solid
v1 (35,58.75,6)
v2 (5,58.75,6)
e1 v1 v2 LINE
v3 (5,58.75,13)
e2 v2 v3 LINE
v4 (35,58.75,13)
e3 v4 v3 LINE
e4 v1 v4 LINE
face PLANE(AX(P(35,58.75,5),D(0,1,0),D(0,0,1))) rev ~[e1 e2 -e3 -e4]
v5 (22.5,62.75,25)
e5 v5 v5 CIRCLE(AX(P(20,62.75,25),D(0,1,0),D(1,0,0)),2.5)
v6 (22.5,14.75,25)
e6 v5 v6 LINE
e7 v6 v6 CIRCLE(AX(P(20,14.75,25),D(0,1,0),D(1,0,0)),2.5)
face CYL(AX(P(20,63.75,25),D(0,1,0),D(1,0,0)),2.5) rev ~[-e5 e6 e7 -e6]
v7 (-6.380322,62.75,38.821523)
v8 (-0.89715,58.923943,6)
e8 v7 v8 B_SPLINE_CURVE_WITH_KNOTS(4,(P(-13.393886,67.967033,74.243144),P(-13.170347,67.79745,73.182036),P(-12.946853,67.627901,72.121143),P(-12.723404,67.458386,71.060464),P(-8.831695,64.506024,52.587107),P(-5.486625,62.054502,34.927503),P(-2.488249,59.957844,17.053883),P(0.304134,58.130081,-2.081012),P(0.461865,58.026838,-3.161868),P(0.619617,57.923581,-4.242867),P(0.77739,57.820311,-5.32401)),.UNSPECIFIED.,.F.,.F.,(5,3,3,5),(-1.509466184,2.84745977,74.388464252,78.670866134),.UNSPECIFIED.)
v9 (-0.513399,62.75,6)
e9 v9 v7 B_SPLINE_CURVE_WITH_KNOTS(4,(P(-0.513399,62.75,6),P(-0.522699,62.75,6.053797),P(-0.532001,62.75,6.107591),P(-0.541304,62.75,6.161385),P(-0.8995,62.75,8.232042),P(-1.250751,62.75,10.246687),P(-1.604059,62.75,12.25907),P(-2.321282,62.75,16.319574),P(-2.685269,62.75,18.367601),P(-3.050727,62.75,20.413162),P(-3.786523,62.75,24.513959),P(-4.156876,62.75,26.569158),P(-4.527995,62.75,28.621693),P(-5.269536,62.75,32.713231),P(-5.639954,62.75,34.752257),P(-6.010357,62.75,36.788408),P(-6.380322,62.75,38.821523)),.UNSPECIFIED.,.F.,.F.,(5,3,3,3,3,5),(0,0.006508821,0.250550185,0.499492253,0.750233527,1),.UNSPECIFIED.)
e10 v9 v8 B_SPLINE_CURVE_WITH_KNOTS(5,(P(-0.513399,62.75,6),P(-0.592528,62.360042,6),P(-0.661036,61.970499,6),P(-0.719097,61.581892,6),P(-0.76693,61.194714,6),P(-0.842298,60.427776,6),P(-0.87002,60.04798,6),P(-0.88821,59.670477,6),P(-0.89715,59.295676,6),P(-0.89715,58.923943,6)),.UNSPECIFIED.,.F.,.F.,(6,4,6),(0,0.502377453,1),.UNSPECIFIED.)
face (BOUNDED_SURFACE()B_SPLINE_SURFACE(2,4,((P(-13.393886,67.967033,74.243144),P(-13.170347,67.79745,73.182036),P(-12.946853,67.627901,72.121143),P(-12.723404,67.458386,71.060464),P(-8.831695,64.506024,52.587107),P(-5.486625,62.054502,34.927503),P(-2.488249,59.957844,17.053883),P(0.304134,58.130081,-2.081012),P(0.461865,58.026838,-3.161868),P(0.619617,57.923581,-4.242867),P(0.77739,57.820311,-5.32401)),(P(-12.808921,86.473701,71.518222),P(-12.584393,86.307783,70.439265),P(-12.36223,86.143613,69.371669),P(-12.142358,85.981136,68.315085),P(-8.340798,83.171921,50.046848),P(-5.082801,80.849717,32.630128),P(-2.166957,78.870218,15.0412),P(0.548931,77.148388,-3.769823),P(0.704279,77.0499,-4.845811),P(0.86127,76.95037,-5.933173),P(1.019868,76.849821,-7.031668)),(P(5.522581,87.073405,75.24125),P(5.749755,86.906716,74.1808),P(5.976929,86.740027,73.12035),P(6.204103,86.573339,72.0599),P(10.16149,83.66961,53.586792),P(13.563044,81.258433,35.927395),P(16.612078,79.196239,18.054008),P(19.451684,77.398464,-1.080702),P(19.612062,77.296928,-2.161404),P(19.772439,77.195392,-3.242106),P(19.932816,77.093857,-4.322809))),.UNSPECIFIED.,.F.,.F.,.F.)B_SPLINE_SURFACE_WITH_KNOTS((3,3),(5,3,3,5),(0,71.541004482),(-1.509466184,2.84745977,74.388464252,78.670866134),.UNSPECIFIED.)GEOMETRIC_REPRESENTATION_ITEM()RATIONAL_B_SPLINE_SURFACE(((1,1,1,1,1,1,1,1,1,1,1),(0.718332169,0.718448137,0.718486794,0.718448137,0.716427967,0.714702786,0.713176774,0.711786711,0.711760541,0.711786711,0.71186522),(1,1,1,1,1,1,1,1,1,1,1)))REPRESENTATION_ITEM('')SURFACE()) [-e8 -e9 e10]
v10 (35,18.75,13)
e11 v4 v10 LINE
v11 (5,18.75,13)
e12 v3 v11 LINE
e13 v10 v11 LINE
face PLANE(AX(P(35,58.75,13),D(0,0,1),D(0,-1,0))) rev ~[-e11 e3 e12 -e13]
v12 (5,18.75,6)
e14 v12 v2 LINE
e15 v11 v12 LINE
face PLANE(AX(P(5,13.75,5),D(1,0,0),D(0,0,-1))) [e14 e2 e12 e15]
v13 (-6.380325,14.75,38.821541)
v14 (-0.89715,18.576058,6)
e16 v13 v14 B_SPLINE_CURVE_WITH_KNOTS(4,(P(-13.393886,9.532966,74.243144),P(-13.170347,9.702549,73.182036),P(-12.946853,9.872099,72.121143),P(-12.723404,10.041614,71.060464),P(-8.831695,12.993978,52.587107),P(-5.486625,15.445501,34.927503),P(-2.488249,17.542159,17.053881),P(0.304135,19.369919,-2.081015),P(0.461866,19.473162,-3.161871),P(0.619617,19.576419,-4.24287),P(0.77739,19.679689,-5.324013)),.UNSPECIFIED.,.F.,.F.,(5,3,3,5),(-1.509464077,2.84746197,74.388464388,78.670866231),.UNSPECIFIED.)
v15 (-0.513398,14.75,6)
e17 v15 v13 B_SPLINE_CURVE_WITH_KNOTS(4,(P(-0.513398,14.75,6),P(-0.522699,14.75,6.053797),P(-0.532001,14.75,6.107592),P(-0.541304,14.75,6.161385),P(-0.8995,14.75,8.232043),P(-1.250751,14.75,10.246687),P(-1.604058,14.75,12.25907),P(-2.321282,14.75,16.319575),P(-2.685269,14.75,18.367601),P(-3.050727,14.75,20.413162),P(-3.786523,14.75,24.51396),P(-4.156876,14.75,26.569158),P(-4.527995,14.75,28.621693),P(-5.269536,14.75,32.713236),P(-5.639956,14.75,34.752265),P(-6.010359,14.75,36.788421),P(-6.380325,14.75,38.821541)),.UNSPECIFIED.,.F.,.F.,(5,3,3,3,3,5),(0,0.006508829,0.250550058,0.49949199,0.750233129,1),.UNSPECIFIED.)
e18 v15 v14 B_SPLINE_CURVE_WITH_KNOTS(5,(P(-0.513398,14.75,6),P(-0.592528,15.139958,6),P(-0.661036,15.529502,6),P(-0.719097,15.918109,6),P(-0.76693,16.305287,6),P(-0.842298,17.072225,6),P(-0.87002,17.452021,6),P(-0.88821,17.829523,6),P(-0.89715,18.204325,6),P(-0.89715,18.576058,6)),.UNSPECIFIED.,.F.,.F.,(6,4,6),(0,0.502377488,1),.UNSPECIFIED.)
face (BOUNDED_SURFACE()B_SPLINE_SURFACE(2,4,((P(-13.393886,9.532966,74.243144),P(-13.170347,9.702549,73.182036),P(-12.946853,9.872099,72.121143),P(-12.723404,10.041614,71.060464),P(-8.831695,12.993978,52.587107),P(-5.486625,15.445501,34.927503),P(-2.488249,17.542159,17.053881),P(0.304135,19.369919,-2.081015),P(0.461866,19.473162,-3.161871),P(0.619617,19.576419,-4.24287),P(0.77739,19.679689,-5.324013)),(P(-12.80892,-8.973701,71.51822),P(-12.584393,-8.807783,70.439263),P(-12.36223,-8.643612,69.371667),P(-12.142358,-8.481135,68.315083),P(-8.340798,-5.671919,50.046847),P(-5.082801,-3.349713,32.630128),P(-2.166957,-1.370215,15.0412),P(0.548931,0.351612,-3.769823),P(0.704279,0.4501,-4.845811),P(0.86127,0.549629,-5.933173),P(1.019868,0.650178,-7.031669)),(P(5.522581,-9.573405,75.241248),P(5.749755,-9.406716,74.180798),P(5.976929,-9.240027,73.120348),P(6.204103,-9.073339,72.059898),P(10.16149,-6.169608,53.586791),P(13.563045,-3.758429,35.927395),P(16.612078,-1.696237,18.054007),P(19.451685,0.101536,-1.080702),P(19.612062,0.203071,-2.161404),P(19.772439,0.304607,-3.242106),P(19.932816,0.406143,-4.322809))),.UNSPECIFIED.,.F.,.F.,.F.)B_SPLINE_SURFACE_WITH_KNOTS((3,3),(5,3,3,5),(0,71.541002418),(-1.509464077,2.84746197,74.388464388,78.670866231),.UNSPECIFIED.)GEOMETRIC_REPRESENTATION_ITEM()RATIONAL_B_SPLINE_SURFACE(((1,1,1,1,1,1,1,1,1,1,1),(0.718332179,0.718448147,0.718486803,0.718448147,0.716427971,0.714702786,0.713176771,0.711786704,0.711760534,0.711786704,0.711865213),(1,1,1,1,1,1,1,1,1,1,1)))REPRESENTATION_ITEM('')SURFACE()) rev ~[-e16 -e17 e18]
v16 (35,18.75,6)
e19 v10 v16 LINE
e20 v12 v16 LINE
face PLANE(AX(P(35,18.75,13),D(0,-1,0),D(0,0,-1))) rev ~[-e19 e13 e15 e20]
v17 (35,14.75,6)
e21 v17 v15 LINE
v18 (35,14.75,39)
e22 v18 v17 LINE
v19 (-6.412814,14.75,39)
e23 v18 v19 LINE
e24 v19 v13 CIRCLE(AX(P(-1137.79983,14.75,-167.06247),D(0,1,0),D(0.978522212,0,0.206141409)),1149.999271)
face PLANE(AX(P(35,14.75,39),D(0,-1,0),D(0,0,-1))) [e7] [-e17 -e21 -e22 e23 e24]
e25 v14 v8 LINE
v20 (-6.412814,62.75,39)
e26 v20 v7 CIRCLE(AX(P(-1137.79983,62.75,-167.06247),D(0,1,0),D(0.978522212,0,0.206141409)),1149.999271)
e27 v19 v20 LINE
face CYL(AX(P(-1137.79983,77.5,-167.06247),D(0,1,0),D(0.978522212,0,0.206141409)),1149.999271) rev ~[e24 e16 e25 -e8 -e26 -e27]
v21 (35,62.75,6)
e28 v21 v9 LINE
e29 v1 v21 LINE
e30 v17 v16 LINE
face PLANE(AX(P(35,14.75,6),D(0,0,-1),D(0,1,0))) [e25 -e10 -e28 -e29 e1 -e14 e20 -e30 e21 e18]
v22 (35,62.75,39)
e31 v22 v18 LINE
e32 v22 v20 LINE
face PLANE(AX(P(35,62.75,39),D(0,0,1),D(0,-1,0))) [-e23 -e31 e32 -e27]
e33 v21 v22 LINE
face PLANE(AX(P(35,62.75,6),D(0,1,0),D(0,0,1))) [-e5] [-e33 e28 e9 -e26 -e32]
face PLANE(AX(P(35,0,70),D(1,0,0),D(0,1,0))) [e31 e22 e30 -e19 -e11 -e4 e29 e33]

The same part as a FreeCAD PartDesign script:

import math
import FreeCAD as App
import Part
import Sketcher


def edges_at(feature, points):
    """Names of the edges that pass closest to the given points."""
    edges = feature.Shape.Edges
    near = lambda p: min(range(len(edges)), key=lambda i: edges[i].distToShape(Part.Vertex(*p))[0])
    return sorted({f"Edge{near(p) + 1}" for p in points})


def add_polygon(sketch, points):
    """Adds a closed chain of lines whose ends are joined by coincident constraints."""
    first, n = sketch.GeometryCount, len(points)
    for a, b in zip(points, points[1:] + points[:1]):
        sketch.addGeometry(Part.LineSegment(App.Vector(*a, 0), App.Vector(*b, 0)), False)
    for i in range(n):
        sketch.addConstraint(Sketcher.Constraint("Coincident", first + i, 2, first + (i + 1) % n, 1))

doc = App.newDocument("Part")
body = doc.addObject("PartDesign::Body", "Body")

# Sketch on XY plane
sketch1 = body.newObject("Sketcher::SketchObject", "Sketch")
sketch1.AttachmentSupport = (doc.getObject("XY_Plane"), [""])
sketch1.MapMode = "FlatFace"
add_polygon(sketch1, [(0, 77.5), (0, 0), (70, 0), (70, 77.5)])  # lines 0-3
sketch1.addConstraint(Sketcher.Constraint("Vertical", 0))
sketch1.addConstraint(Sketcher.Constraint("Horizontal", 1))
sketch1.addConstraint(Sketcher.Constraint("Vertical", 2))
sketch1.addConstraint(Sketcher.Constraint("Horizontal", 3))
sketch1.addConstraint(Sketcher.Constraint("Coincident", 0, 2, -1, 1))
sketch1.addConstraint(Sketcher.Constraint("DistanceX", 1, 1, 1, 2, 70.0))
sketch1.addConstraint(Sketcher.Constraint("DistanceY", 0, 2, 0, 1, 77.5))
pad1 = body.newObject("PartDesign::Pad", "Pad")
pad1.Profile = sketch1
pad1.Length = 70

# Sketch on XY plane
sketch2 = body.newObject("Sketcher::SketchObject", "Sketch001")
sketch2.AttachmentSupport = (doc.getObject("XY_Plane"), [""])
sketch2.MapMode = "FlatFace"
sketch2.AttachmentOffset = App.Placement(App.Vector(0, 0, 70), App.Rotation())
add_polygon(sketch2, [(35, 77.5), (35, 0), (70, 0), (70, 77.5)])  # lines 0-3
sketch2.addConstraint(Sketcher.Constraint("Vertical", 0))
sketch2.addConstraint(Sketcher.Constraint("Horizontal", 1))
sketch2.addConstraint(Sketcher.Constraint("Vertical", 2))
sketch2.addConstraint(Sketcher.Constraint("Horizontal", 3))
sketch2.addConstraint(Sketcher.Constraint("PointOnObject", 0, 2, -1))
sketch2.addConstraint(Sketcher.Constraint("DistanceX", 1, 1, 1, 2, 35.0))
sketch2.addConstraint(Sketcher.Constraint("DistanceY", 0, 2, 0, 1, 77.5))
sketch2.addConstraint(Sketcher.Constraint("DistanceX", -1, 1, 0, 2, 35.0))
pocket1 = body.newObject("PartDesign::Pocket", "Pocket")
pocket1.Profile = sketch2
pocket1.Type = "ThroughAll"

# Sketch on XZ plane
sketch3 = body.newObject("Sketcher::SketchObject", "Sketch002")
sketch3.AttachmentSupport = (doc.getObject("XZ_Plane"), [""])
sketch3.MapMode = "FlatFace"
sketch3.AttachmentOffset = App.Placement(App.Vector(0, 0, -77.5), App.Rotation())
sketch3.addGeometry(Part.LineSegment(App.Vector(0, 70, 0), App.Vector(0, 0, 0)), False)
sketch3.addGeometry(Part.ArcOfCircle(Part.Circle(App.Vector(-1137.8005, -167.0626, 0), App.Vector(0, 0, 1), 1149.999953), math.radians(8.353021), math.radians(11.896324)), False)
sketch3.addGeometry(Part.LineSegment(App.Vector(-12.5, 70, 0), App.Vector(0, 70, 0)), False)
sketch3.addConstraint(Sketcher.Constraint("Coincident", 0, 2, 1, 1))
sketch3.addConstraint(Sketcher.Constraint("Coincident", 1, 2, 2, 1))
sketch3.addConstraint(Sketcher.Constraint("Coincident", 2, 2, 0, 1))
sketch3.addConstraint(Sketcher.Constraint("Vertical", 0))
sketch3.addConstraint(Sketcher.Constraint("Horizontal", 2))
sketch3.addConstraint(Sketcher.Constraint("Coincident", 0, 2, -1, 1))
sketch3.addConstraint(Sketcher.Constraint("Radius", 1, 1150.0))
sketch3.addConstraint(Sketcher.Constraint("DistanceY", 0, 2, 0, 1, 70.0))
sketch3.addConstraint(Sketcher.Constraint("DistanceX", 2, 1, 2, 2, 12.5))
pad2 = body.newObject("PartDesign::Pad", "Pad001")
pad2.Profile = sketch3
pad2.Length = 77.5

# Sketch on YZ plane
sketch4 = body.newObject("Sketcher::SketchObject", "Sketch003")
sketch4.AttachmentSupport = (doc.getObject("YZ_Plane"), [""])
sketch4.MapMode = "FlatFace"
sketch4.AttachmentOffset = App.Placement(App.Vector(0, 0, 35), App.Rotation())
sketch4.addGeometry(Part.LineSegment(App.Vector(86.25, 70, 0), App.Vector(77.5, 70, 0)), False)
sketch4.addGeometry(Part.LineSegment(App.Vector(77.5, 70, 0), App.Vector(77.5, 0, 0)), False)
sketch4.addGeometry(Part.ArcOfCircle(Part.Circle(App.Vector(1222.460102, -107.573138, 0), App.Vector(0, 0, 1), 1150.002442), math.radians(171.117357), math.radians(174.632611)), False)
sketch4.addGeometry(Part.LineSegment(App.Vector(0, 0, 0), App.Vector(0, 70, 0)), False)
sketch4.addGeometry(Part.LineSegment(App.Vector(0, 70, 0), App.Vector(-8.75, 70, 0)), False)
sketch4.addGeometry(Part.ArcOfCircle(Part.Circle(App.Vector(-1144.955288, -107.572536, 0), App.Vector(0, 0, 1), 1149.997593), math.radians(5.367382), math.radians(8.882651)), False)
sketch4.addConstraint(Sketcher.Constraint("Coincident", 0, 2, 1, 1))
sketch4.addConstraint(Sketcher.Constraint("Coincident", 1, 2, 2, 2))
sketch4.addConstraint(Sketcher.Constraint("Coincident", 2, 1, 0, 1))
sketch4.addConstraint(Sketcher.Constraint("Coincident", 3, 2, 4, 1))
sketch4.addConstraint(Sketcher.Constraint("Coincident", 4, 2, 5, 2))
sketch4.addConstraint(Sketcher.Constraint("Coincident", 5, 1, 3, 1))
sketch4.addConstraint(Sketcher.Constraint("Horizontal", 0))
sketch4.addConstraint(Sketcher.Constraint("Vertical", 1))
sketch4.addConstraint(Sketcher.Constraint("Vertical", 3))
sketch4.addConstraint(Sketcher.Constraint("Horizontal", 4))
sketch4.addConstraint(Sketcher.Constraint("PointOnObject", 1, 2, -1))
sketch4.addConstraint(Sketcher.Constraint("PointOnObject", 3, 2, -2))
sketch4.addConstraint(Sketcher.Constraint("Equal", 0, 4))
sketch4.addConstraint(Sketcher.Constraint("Equal", 1, 3))
sketch4.addConstraint(Sketcher.Constraint("DistanceX", 4, 2, 2, 1, 95.0))
sketch4.addConstraint(Sketcher.Constraint("DistanceY", 1, 2, 1, 1, 70.0))
sketch4.addConstraint(Sketcher.Constraint("DistanceY", -1, 1, 3, 2, 70.0))
sketch4.addConstraint(Sketcher.Constraint("DistanceX", 0, 2, 0, 1, 8.75))
sketch4.addConstraint(Sketcher.Constraint("Radius", 2, 1150.0024))
sketch4.addConstraint(Sketcher.Constraint("Radius", 5, 1149.9976))
pad3 = body.newObject("PartDesign::Pad", "Pad002")
pad3.Profile = sketch4
pad3.Length = 55
pad3.Reversed = True

# Sketch on XZ plane
sketch5 = body.newObject("Sketcher::SketchObject", "Sketch004")
sketch5.AttachmentSupport = (doc.getObject("XZ_Plane"), [""])
sketch5.MapMode = "FlatFace"
sketch5.addGeometry(Part.ArcOfCircle(Part.Circle(App.Vector(-1137.8005, -167.0626, 0), App.Vector(0, 0, 1), 1149.999953), math.radians(8.353021), math.radians(11.896324)), False)
sketch5.addGeometry(Part.LineSegment(App.Vector(0, 0, 0), App.Vector(-20, 0, 0)), False)
sketch5.addGeometry(Part.LineSegment(App.Vector(-20, 0, 0), App.Vector(-20, 70, 0)), False)
sketch5.addGeometry(Part.LineSegment(App.Vector(-20, 70, 0), App.Vector(-12.5, 70, 0)), False)
sketch5.addConstraint(Sketcher.Constraint("Coincident", 0, 1, 1, 1))
sketch5.addConstraint(Sketcher.Constraint("Coincident", 1, 2, 2, 1))
sketch5.addConstraint(Sketcher.Constraint("Coincident", 2, 2, 3, 1))
sketch5.addConstraint(Sketcher.Constraint("Coincident", 3, 2, 0, 2))
sketch5.addConstraint(Sketcher.Constraint("Horizontal", 1))
sketch5.addConstraint(Sketcher.Constraint("Vertical", 2))
sketch5.addConstraint(Sketcher.Constraint("Horizontal", 3))
sketch5.addConstraint(Sketcher.Constraint("PointOnObject", 1, 2, -1))
sketch5.addConstraint(Sketcher.Constraint("Radius", 0, 1150.0))
sketch5.addConstraint(Sketcher.Constraint("DistanceX", 1, 2, 1, 1, 20.0))
sketch5.addConstraint(Sketcher.Constraint("DistanceY", 2, 1, 2, 2, 70.0))
sketch5.addConstraint(Sketcher.Constraint("DistanceX", 3, 1, 3, 2, 7.5))
sketch5.addConstraint(Sketcher.Constraint("DistanceX", 1, 2, -1, 1, 20.0))
pocket2 = body.newObject("PartDesign::Pocket", "Pocket001")
pocket2.Profile = sketch5
pocket2.Type = "ThroughAll"
pocket2.Midplane = True
doc.recompute()

fillet = body.newObject("PartDesign::Fillet", "Fillet")
fillet.Base = (pocket2, edges_at(pocket2, [(-5.746, 81.368, 35.306), (-5.746, -3.868, 35.306)]))
fillet.Radius = 19.35

# Sketch on XY plane
sketch6 = body.newObject("Sketcher::SketchObject", "Sketch005")
sketch6.AttachmentSupport = (doc.getObject("XY_Plane"), [""])
sketch6.MapMode = "FlatFace"
sketch6.AttachmentOffset = App.Placement(App.Vector(0, 0, 70), App.Rotation())
sketch6.addGeometry(Part.Circle(App.Vector(35, 38.75, 0), App.Vector(0, 0, 1), 35), False)
sketch6.addConstraint(Sketcher.Constraint("Diameter", 0, 70.0))
sketch6.addConstraint(Sketcher.Constraint("DistanceX", -1, 1, 0, 3, 35.0))
sketch6.addConstraint(Sketcher.Constraint("DistanceY", -1, 1, 0, 3, 38.75))
pocket3 = body.newObject("PartDesign::Pocket", "Pocket002")
pocket3.Profile = sketch6
pocket3.Length = 17.5

# Sketch on YZ plane
sketch7 = body.newObject("Sketcher::SketchObject", "Sketch006")
sketch7.AttachmentSupport = (doc.getObject("YZ_Plane"), [""])
sketch7.MapMode = "FlatFace"
sketch7.AttachmentOffset = App.Placement(App.Vector(0, 0, 35), App.Rotation())
sketch7.addGeometry(Part.LineSegment(App.Vector(0, 0, 0), App.Vector(77.5, 0, 0)), False)  # 0
sketch7.addGeometry(Part.ArcOfCircle(Part.Circle(App.Vector(1222.460102, -107.573138, 0), App.Vector(0, 0, 1), 1150.002442), math.radians(171.117357), math.radians(174.632611)), False)  # 1
sketch7.addGeometry(Part.LineSegment(App.Vector(86.25, 70, 0), App.Vector(-8.75, 70, 0)), False)  # 2
sketch7.addGeometry(Part.ArcOfCircle(Part.Circle(App.Vector(-1144.955288, -107.572536, 0), App.Vector(0, 0, 1), 1149.997593), math.radians(5.367382), math.radians(8.882651)), False)  # 3
add_polygon(sketch7, [(63.75, 5), (13.75, 5), (13.75, 40), (63.75, 40)])  # lines 4-7
sketch7.addConstraint(Sketcher.Constraint("Coincident", 0, 2, 1, 2))
sketch7.addConstraint(Sketcher.Constraint("Coincident", 1, 1, 2, 1))
sketch7.addConstraint(Sketcher.Constraint("Coincident", 2, 2, 3, 2))
sketch7.addConstraint(Sketcher.Constraint("Coincident", 3, 1, 0, 1))
sketch7.addConstraint(Sketcher.Constraint("Horizontal", 0))
sketch7.addConstraint(Sketcher.Constraint("Horizontal", 2))
sketch7.addConstraint(Sketcher.Constraint("Horizontal", 4))
sketch7.addConstraint(Sketcher.Constraint("Vertical", 5))
sketch7.addConstraint(Sketcher.Constraint("Horizontal", 6))
sketch7.addConstraint(Sketcher.Constraint("Vertical", 7))
sketch7.addConstraint(Sketcher.Constraint("PointOnObject", 0, 2, -1))
sketch7.addConstraint(Sketcher.Constraint("DistanceX", 4, 2, 4, 1, 50.0))
sketch7.addConstraint(Sketcher.Constraint("DistanceY", 5, 1, 5, 2, 35.0))
sketch7.addConstraint(Sketcher.Constraint("DistanceY", -1, 1, 4, 2, 5.0))
sketch7.addConstraint(Sketcher.Constraint("DistanceX", 2, 2, 2, 1, 95.0))
sketch7.addConstraint(Sketcher.Constraint("DistanceX", 0, 1, 0, 2, 77.5))
sketch7.addConstraint(Sketcher.Constraint("DistanceY", -1, 1, 2, 2, 70.0))
sketch7.addConstraint(Sketcher.Constraint("DistanceX", -1, 1, 0, 2, 77.5))
sketch7.addConstraint(Sketcher.Constraint("Radius", 1, 1150.0024))
sketch7.addConstraint(Sketcher.Constraint("Radius", 3, 1149.9976))
sketch7.addConstraint(Sketcher.Constraint("DistanceX", 2, 2, 4, 2, 22.5))
sketch7.addConstraint(Sketcher.Constraint("DistanceX", -1, 1, 1, 3, 1222.46))
pocket4 = body.newObject("PartDesign::Pocket", "Pocket003")
pocket4.Profile = sketch7
pocket4.Type = "ThroughAll"

# Sketch on YZ plane
sketch8 = body.newObject("Sketcher::SketchObject", "Sketch007")
sketch8.AttachmentSupport = (doc.getObject("YZ_Plane"), [""])
sketch8.MapMode = "FlatFace"
sketch8.AttachmentOffset = App.Placement(App.Vector(0, 0, 35), App.Rotation())
add_polygon(sketch8, [(58.75, 13), (18.75, 13), (18.75, 5), (58.75, 5)])  # lines 0-3
sketch8.addConstraint(Sketcher.Constraint("Horizontal", 0))
sketch8.addConstraint(Sketcher.Constraint("Vertical", 1))
sketch8.addConstraint(Sketcher.Constraint("Horizontal", 2))
sketch8.addConstraint(Sketcher.Constraint("Vertical", 3))
sketch8.addConstraint(Sketcher.Constraint("DistanceX", 0, 2, 0, 1, 40.0))
sketch8.addConstraint(Sketcher.Constraint("DistanceY", 1, 2, 1, 1, 8.0))
sketch8.addConstraint(Sketcher.Constraint("DistanceY", -1, 1, 0, 2, 13.0))
sketch8.addConstraint(Sketcher.Constraint("DistanceX", -1, 1, 0, 2, 18.75))
pocket5 = body.newObject("PartDesign::Pocket", "Pocket004")
pocket5.Profile = sketch8
pocket5.Length = 30

# Sketch on XZ plane
sketch9 = body.newObject("Sketcher::SketchObject", "Sketch008")
sketch9.AttachmentSupport = (doc.getObject("XZ_Plane"), [""])
sketch9.MapMode = "FlatFace"
sketch9.AttachmentOffset = App.Placement(App.Vector(0, 0, -63.75), App.Rotation())
sketch9.addGeometry(Part.Circle(App.Vector(20, 25, 0), App.Vector(0, 0, 1), 2.5), False)
sketch9.addConstraint(Sketcher.Constraint("Diameter", 0, 5.0))
sketch9.addConstraint(Sketcher.Constraint("DistanceX", -1, 1, 0, 3, 20.0))
sketch9.addConstraint(Sketcher.Constraint("DistanceY", -1, 1, 0, 3, 25.0))
pocket6 = body.newObject("PartDesign::Pocket", "Pocket005")
pocket6.Profile = sketch9
pocket6.Type = "ThroughAll"
pocket6.Reversed = True

# Sketch on YZ plane
sketch10 = body.newObject("Sketcher::SketchObject", "Sketch009")
sketch10.AttachmentSupport = (doc.getObject("YZ_Plane"), [""])
sketch10.MapMode = "FlatFace"
sketch10.AttachmentOffset = App.Placement(App.Vector(0, 0, 35), App.Rotation())
add_polygon(sketch10, [(13.75, 5), (63.75, 5), (63.75, 40), (13.75, 40)])  # lines 0-3
add_polygon(sketch10, [(62.75, 6), (14.75, 6), (14.75, 39), (62.75, 39)])  # lines 4-7
sketch10.addConstraint(Sketcher.Constraint("Horizontal", 0))
sketch10.addConstraint(Sketcher.Constraint("Vertical", 1))
sketch10.addConstraint(Sketcher.Constraint("Horizontal", 2))
sketch10.addConstraint(Sketcher.Constraint("Vertical", 3))
sketch10.addConstraint(Sketcher.Constraint("Horizontal", 4))
sketch10.addConstraint(Sketcher.Constraint("Vertical", 5))
sketch10.addConstraint(Sketcher.Constraint("Horizontal", 6))
sketch10.addConstraint(Sketcher.Constraint("Vertical", 7))
sketch10.addConstraint(Sketcher.Constraint("DistanceX", 3, 2, 4, 2, 1.0))
sketch10.addConstraint(Sketcher.Constraint("DistanceY", 3, 2, 4, 2, 1.0))
sketch10.addConstraint(Sketcher.Constraint("DistanceY", 5, 2, 2, 2, 1.0))
sketch10.addConstraint(Sketcher.Constraint("DistanceX", 6, 2, 1, 2, 1.0))
sketch10.addConstraint(Sketcher.Constraint("DistanceX", 0, 1, 0, 2, 50.0))
sketch10.addConstraint(Sketcher.Constraint("DistanceY", 1, 1, 1, 2, 35.0))
sketch10.addConstraint(Sketcher.Constraint("DistanceY", -1, 1, 0, 2, 5.0))
sketch10.addConstraint(Sketcher.Constraint("DistanceX", -1, 1, 0, 2, 63.75))
pocket7 = body.newObject("PartDesign::Pocket", "Pocket006")
pocket7.Profile = sketch10
pocket7.Type = "ThroughAll"

doc.recompute()
